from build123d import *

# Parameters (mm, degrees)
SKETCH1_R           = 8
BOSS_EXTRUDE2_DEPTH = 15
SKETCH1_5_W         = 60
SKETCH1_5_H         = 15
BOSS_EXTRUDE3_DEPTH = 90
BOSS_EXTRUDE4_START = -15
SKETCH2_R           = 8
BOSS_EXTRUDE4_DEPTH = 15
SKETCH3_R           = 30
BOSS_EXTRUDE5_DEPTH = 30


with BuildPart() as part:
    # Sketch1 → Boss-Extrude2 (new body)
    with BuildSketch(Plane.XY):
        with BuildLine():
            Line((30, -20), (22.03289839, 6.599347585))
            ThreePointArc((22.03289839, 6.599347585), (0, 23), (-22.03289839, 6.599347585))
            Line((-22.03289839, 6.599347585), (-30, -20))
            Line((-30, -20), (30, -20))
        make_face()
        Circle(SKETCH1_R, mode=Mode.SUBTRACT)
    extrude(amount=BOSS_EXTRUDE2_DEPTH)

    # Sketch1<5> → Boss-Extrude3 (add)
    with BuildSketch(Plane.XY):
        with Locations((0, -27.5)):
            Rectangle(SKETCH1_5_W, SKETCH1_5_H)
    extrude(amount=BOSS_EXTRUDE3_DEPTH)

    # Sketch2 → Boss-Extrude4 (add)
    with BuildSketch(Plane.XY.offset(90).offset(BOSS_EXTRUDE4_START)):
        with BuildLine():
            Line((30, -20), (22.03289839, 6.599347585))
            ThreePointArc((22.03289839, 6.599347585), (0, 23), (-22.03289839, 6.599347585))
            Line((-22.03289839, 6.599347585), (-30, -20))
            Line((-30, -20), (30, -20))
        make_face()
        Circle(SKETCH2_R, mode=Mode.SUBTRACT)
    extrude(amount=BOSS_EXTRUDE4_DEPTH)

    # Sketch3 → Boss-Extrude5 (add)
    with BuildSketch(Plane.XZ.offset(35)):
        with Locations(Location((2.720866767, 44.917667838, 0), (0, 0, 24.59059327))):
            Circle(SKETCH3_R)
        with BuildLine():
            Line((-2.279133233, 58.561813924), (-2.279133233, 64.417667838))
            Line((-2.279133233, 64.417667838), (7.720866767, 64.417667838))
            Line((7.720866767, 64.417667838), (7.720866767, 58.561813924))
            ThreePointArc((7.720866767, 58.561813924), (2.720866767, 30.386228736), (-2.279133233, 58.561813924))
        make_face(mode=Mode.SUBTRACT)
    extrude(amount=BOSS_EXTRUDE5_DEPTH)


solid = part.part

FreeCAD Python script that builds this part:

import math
import FreeCAD as App
import Part
import Sketcher

doc = App.newDocument("Part")
body = doc.addObject("PartDesign::Body", "Body")

sketch1 = body.newObject("Sketcher::SketchObject", "Sketch")
sketch1.AttachmentSupport = (doc.getObject("XY_Plane"), [""])
sketch1.MapMode = "FlatFace"
sketch1.addGeometry(Part.LineSegment(App.Vector(30, -20, 0), App.Vector(22, 7, 0)), False)
sketch1.addGeometry(Part.ArcOfCircle(Part.Circle(App.Vector(0, 0, 0), App.Vector(0, 0, 1), 23), math.radians(17), math.radians(163)), False)
sketch1.addGeometry(Part.LineSegment(App.Vector(-22, 7, 0), App.Vector(-30, -20, 0)), False)
sketch1.addGeometry(Part.LineSegment(App.Vector(-30, -20, 0), App.Vector(30, -20, 0)), False)
sketch1.addGeometry(Part.Circle(App.Vector(0, 0, 0), App.Vector(0, 0, 1), 8), False)
sketch1.addConstraint(Sketcher.Constraint("Tangent", 0, 2, 1, 1))
sketch1.addConstraint(Sketcher.Constraint("Tangent", 1, 2, 2, 1))
sketch1.addConstraint(Sketcher.Constraint("Coincident", 2, 2, 3, 1))
sketch1.addConstraint(Sketcher.Constraint("Coincident", 3, 2, 0, 1))
sketch1.addConstraint(Sketcher.Constraint("Horizontal", 3))
sketch1.addConstraint(Sketcher.Constraint("Coincident", 1, 3, -1, 1))
sketch1.addConstraint(Sketcher.Constraint("Coincident", 4, 3, -1, 1))
sketch1.addConstraint(Sketcher.Constraint("Horizontal", 0, 2, 1, 2))
sketch1.addConstraint(Sketcher.Constraint("Diameter", 4, 16.0))
sketch1.addConstraint(Sketcher.Constraint("Radius", 1, 23.0))
sketch1.addConstraint(Sketcher.Constraint("DistanceX", 3, 1, 3, 2, 60.0))
sketch1.addConstraint(Sketcher.Constraint("DistanceY", 2, 2, -1, 1, 20.0))
pad1 = body.newObject("PartDesign::Pad", "Pad")
pad1.Profile = sketch1
pad1.Length = 15

sketch2 = body.newObject("Sketcher::SketchObject", "Sketch001")
sketch2.AttachmentSupport = (doc.getObject("XY_Plane"), [""])
sketch2.MapMode = "FlatFace"
sketch2.addGeometry(Part.LineSegment(App.Vector(-30, -20, 0), App.Vector(-30, -35, 0)), False)
sketch2.addGeometry(Part.LineSegment(App.Vector(-30, -35, 0), App.Vector(30, -35, 0)), False)
sketch2.addGeometry(Part.LineSegment(App.Vector(30, -35, 0), App.Vector(30, -20, 0)), False)
sketch2.addGeometry(Part.LineSegment(App.Vector(30, -20, 0), App.Vector(-30, -20, 0)), False)
sketch2.addConstraint(Sketcher.Constraint("Coincident", 0, 2, 1, 1))
sketch2.addConstraint(Sketcher.Constraint("Coincident", 1, 2, 2, 1))
sketch2.addConstraint(Sketcher.Constraint("Coincident", 2, 2, 3, 1))
sketch2.addConstraint(Sketcher.Constraint("Coincident", 3, 2, 0, 1))
sketch2.addConstraint(Sketcher.Constraint("Vertical", 0))
sketch2.addConstraint(Sketcher.Constraint("Horizontal", 1))
sketch2.addConstraint(Sketcher.Constraint("Vertical", 2))
sketch2.addConstraint(Sketcher.Constraint("Horizontal", 3))
sketch2.addConstraint(Sketcher.Constraint("DistanceX", 1, 1, 1, 2, 60.0))
sketch2.addConstraint(Sketcher.Constraint("DistanceY", 0, 2, 0, 1, 15.0))
sketch2.addConstraint(Sketcher.Constraint("DistanceX", 0, 2, -1, 1, 30.0))
sketch2.addConstraint(Sketcher.Constraint("DistanceY", 0, 2, -1, 1, 35.0))
pad2 = body.newObject("PartDesign::Pad", "Pad001")
pad2.Profile = sketch2
pad2.Length = 90

sketch3 = body.newObject("Sketcher::SketchObject", "Sketch002")
sketch3.AttachmentSupport = (doc.getObject("XY_Plane"), [""])
sketch3.MapMode = "FlatFace"
sketch3.AttachmentOffset = App.Placement(App.Vector(0, 0, 75), App.Rotation())
sketch3.addGeometry(Part.LineSegment(App.Vector(30, -20, 0), App.Vector(22, 7, 0)), False)
sketch3.addGeometry(Part.ArcOfCircle(Part.Circle(App.Vector(0, 0, 0), App.Vector(0, 0, 1), 23), math.radians(17), math.radians(163)), False)
sketch3.addGeometry(Part.LineSegment(App.Vector(-22, 7, 0), App.Vector(-30, -20, 0)), False)
sketch3.addGeometry(Part.LineSegment(App.Vector(-30, -20, 0), App.Vector(30, -20, 0)), False)
sketch3.addGeometry(Part.Circle(App.Vector(0, 0, 0), App.Vector(0, 0, 1), 8), False)
sketch3.addConstraint(Sketcher.Constraint("Tangent", 0, 2, 1, 1))
sketch3.addConstraint(Sketcher.Constraint("Tangent", 1, 2, 2, 1))
sketch3.addConstraint(Sketcher.Constraint("Coincident", 2, 2, 3, 1))
sketch3.addConstraint(Sketcher.Constraint("Coincident", 3, 2, 0, 1))
sketch3.addConstraint(Sketcher.Constraint("Horizontal", 3))
sketch3.addConstraint(Sketcher.Constraint("Coincident", 1, 3, -1, 1))
sketch3.addConstraint(Sketcher.Constraint("Coincident", 4, 3, -1, 1))
sketch3.addConstraint(Sketcher.Constraint("Horizontal", 0, 2, 1, 2))
sketch3.addConstraint(Sketcher.Constraint("Diameter", 4, 16.0))
sketch3.addConstraint(Sketcher.Constraint("Radius", 1, 23.0))
sketch3.addConstraint(Sketcher.Constraint("DistanceX", 3, 1, 3, 2, 60.0))
sketch3.addConstraint(Sketcher.Constraint("DistanceY", 2, 2, -1, 1, 20.0))
pad3 = body.newObject("PartDesign::Pad", "Pad002")
pad3.Profile = sketch3
pad3.Length = 15

sketch4 = body.newObject("Sketcher::SketchObject", "Sketch003")
sketch4.AttachmentSupport = (doc.getObject("XZ_Plane"), [""])
sketch4.MapMode = "FlatFace"
sketch4.AttachmentOffset = App.Placement(App.Vector(0, 0, 35), App.Rotation())
sketch4.addGeometry(Part.Circle(App.Vector(3, 45, 0), App.Vector(0, 0, 1), 30), False)
sketch4.addGeometry(Part.ArcOfCircle(Part.Circle(App.Vector(3, 45, 0), App.Vector(0, 0, 1), 15), math.radians(110), math.radians(430)), False)
sketch4.addGeometry(Part.LineSegment(App.Vector(-2, 59, 0), App.Vector(-2, 64, 0)), False)
sketch4.addGeometry(Part.LineSegment(App.Vector(-2, 64, 0), App.Vector(8, 64, 0)), False)
sketch4.addGeometry(Part.LineSegment(App.Vector(8, 64, 0), App.Vector(8, 59, 0)), False)
sketch4.addConstraint(Sketcher.Constraint("Coincident", 1, 1, 2, 1))
sketch4.addConstraint(Sketcher.Constraint("Coincident", 2, 2, 3, 1))
sketch4.addConstraint(Sketcher.Constraint("Coincident", 3, 2, 4, 1))
sketch4.addConstraint(Sketcher.Constraint("Coincident", 4, 2, 1, 2))
sketch4.addConstraint(Sketcher.Constraint("Vertical", 2))
sketch4.addConstraint(Sketcher.Constraint("Horizontal", 3))
sketch4.addConstraint(Sketcher.Constraint("Vertical", 4))
sketch4.addConstraint(Sketcher.Constraint("Coincident", 1, 3, 0, 3))
sketch4.addConstraint(Sketcher.Constraint("Horizontal", 1, 1, 4, 2))
sketch4.addConstraint(Sketcher.Constraint("Diameter", 0, 60.0))
sketch4.addConstraint(Sketcher.Constraint("DistanceX", 3, 1, 3, 2, 10.0))
sketch4.addConstraint(Sketcher.Constraint("DistanceY", 1, 3, 2, 2, 19.5))
sketch4.addConstraint(Sketcher.Constraint("Radius", 1, 14.531439))
sketch4.addConstraint(Sketcher.Constraint("DistanceX", -1, 1, 0, 3, 2.720867))
sketch4.addConstraint(Sketcher.Constraint("DistanceY", -1, 1, 0, 3, 44.917668))
pad4 = body.newObject("PartDesign::Pad", "Pad003")
pad4.Profile = sketch4
pad4.Length = 30

doc.recompute()
